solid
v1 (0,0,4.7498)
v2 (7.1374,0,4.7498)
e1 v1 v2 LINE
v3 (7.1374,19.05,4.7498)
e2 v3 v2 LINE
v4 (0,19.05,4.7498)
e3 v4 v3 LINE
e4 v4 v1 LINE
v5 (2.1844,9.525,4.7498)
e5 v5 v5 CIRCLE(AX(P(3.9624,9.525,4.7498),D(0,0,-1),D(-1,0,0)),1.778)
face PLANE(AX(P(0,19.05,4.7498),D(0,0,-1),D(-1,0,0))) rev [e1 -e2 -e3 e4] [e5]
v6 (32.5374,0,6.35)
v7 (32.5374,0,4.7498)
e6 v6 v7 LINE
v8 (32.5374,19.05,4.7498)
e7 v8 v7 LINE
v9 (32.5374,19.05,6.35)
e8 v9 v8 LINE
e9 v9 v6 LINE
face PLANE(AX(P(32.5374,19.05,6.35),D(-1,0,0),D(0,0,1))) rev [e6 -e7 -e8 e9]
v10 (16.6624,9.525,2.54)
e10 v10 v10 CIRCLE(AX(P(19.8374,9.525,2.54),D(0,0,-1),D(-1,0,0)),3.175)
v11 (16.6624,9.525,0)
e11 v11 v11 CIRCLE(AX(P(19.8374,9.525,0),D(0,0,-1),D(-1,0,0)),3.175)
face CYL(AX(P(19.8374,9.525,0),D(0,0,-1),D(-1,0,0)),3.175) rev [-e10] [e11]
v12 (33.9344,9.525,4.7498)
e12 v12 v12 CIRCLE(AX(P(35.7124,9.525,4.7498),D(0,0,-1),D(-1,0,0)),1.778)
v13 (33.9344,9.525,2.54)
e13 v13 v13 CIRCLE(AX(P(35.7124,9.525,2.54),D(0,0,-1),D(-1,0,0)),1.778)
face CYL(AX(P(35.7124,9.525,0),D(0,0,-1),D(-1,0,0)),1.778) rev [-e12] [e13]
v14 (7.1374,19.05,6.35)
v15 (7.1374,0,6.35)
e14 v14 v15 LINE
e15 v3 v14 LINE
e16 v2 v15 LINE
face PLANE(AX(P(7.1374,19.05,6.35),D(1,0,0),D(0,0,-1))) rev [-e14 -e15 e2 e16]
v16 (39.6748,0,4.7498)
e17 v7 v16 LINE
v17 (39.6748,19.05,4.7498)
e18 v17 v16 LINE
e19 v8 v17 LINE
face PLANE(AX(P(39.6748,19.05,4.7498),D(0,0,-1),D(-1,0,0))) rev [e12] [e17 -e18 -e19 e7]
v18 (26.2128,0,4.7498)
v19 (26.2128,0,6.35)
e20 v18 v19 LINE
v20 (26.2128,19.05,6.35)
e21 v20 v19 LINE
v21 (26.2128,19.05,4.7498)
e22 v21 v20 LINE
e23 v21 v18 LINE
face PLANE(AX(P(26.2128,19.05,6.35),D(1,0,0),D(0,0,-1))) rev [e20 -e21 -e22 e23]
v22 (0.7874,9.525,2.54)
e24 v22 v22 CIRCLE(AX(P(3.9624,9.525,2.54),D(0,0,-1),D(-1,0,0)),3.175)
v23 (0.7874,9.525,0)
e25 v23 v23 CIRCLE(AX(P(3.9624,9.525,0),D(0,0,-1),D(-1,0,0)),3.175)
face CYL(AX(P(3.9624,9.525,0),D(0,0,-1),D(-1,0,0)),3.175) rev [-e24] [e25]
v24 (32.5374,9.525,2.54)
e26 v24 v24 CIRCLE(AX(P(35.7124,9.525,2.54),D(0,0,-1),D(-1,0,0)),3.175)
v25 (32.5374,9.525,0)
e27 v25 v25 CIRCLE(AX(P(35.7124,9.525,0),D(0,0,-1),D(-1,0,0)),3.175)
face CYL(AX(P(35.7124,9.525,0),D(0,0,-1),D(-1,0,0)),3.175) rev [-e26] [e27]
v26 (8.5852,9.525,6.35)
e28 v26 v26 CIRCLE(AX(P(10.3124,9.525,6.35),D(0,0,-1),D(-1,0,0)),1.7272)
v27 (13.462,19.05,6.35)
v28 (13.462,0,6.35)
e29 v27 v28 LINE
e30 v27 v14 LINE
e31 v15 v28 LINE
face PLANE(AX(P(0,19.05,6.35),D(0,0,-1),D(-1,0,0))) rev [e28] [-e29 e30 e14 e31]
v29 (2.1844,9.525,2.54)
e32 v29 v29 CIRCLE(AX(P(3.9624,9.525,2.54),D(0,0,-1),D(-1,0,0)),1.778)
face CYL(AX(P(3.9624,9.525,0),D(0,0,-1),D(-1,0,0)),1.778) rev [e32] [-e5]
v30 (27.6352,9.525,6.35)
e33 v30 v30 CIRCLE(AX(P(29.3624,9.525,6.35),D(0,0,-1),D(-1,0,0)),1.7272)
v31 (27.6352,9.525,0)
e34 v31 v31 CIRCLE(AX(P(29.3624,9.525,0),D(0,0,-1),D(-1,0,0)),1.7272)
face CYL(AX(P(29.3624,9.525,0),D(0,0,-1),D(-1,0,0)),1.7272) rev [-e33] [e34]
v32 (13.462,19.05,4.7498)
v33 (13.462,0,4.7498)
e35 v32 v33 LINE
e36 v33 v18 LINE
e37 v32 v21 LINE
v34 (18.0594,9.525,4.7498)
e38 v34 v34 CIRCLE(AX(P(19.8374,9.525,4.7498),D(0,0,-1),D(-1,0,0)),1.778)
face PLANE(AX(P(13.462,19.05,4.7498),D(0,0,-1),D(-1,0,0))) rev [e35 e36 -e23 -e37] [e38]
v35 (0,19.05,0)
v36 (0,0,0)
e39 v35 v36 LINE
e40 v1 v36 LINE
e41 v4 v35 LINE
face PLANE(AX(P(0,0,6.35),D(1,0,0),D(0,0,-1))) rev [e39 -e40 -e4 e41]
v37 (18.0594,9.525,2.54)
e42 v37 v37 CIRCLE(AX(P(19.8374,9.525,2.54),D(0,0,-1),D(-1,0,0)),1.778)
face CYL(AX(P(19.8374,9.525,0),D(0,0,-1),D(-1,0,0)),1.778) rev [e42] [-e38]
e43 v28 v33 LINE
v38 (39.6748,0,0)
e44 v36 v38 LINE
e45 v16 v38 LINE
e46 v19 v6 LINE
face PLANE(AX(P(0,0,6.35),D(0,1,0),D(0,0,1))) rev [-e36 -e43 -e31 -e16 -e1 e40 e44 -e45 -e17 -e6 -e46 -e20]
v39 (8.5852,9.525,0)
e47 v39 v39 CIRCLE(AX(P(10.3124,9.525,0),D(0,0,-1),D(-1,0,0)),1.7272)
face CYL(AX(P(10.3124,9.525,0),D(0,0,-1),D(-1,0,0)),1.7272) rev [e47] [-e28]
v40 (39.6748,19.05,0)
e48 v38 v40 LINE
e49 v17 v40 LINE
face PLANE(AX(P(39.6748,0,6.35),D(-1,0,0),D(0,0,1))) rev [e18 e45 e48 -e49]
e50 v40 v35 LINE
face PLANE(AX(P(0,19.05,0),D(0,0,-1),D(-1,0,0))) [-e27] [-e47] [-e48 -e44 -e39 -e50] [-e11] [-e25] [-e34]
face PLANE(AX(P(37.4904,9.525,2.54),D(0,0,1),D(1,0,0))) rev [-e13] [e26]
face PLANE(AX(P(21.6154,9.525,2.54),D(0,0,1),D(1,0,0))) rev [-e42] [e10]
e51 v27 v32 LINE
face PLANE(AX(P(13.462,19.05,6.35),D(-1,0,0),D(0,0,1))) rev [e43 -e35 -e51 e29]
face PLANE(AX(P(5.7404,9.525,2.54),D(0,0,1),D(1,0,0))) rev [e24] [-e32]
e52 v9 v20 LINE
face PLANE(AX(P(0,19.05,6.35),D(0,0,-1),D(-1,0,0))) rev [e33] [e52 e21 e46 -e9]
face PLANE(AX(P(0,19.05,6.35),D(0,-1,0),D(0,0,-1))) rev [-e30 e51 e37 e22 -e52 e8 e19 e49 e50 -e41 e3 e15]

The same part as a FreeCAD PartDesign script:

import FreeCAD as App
import Part
import Sketcher
from FreeCAD import Vector
Q = App.Units.Quantity


def add_polygon(sketch, points):
    """Adds a closed chain of lines whose ends are joined by coincident constraints."""
    first, n = sketch.GeometryCount, len(points)
    for a, b in zip(points, points[1:] + points[:1]):
        sketch.addGeometry(Part.LineSegment(App.Vector(*a, 0), App.Vector(*b, 0)), False)
    for i in range(n):
        sketch.addConstraint(Sketcher.Constraint("Coincident", first + i, 2, first + (i + 1) % n, 1))

doc = App.newDocument("Part")
body = doc.addObject("PartDesign::Body", "Body")

# Sketch on XY plane
sketch1 = body.newObject("Sketcher::SketchObject", "Sketch")
sketch1.AttachmentSupport = (doc.getObject("XY_Plane"), [""])
sketch1.MapMode = "FlatFace"
add_polygon(sketch1, [(0, 19), (0, 0), (40, 0), (40, 19)])  # lines 0-3
sketch1.addConstraint(Sketcher.Constraint("Vertical", 0))
sketch1.addConstraint(Sketcher.Constraint("Horizontal", 1))
sketch1.addConstraint(Sketcher.Constraint("Vertical", 2))
sketch1.addConstraint(Sketcher.Constraint("Horizontal", 3))
sketch1.addConstraint(Sketcher.Constraint("Coincident", 0, 2, -1, 1))
sketch1.addConstraint(Sketcher.Constraint("DistanceY", 0, 2, 0, 1, Q("0.75 in")))
sketch1.addConstraint(Sketcher.Constraint("DistanceX", 1, 1, 1, 2, Q("1.562 in")))
pad1 = body.newObject("PartDesign::Pad", "Pad")
pad1.Profile = sketch1
pad1.Length = Q("0.25 in")

# Sketch on XZ plane
sketch2 = body.newObject("Sketcher::SketchObject", "Sketch001")
sketch2.AttachmentSupport = (doc.getObject("XZ_Plane"), [""])
sketch2.MapMode = "FlatFace"
add_polygon(sketch2, [(0, 6.3), (0, 4.7), (7.1, 4.7), (7.1, 6.3)])  # lines 0-3
add_polygon(sketch2, [(13.5, 6.3), (13.5, 4.7), (26.2, 4.7), (26.2, 6.3)])  # lines 4-7
add_polygon(sketch2, [(32.5, 6.3), (32.5, 4.7), (39.7, 4.7), (39.7, 6.3)])  # lines 8-11
sketch2.addConstraint(Sketcher.Constraint("Vertical", 0))
sketch2.addConstraint(Sketcher.Constraint("Horizontal", 1))
sketch2.addConstraint(Sketcher.Constraint("Vertical", 2))
sketch2.addConstraint(Sketcher.Constraint("Horizontal", 3))
sketch2.addConstraint(Sketcher.Constraint("Vertical", 4))
sketch2.addConstraint(Sketcher.Constraint("Horizontal", 5))
sketch2.addConstraint(Sketcher.Constraint("Vertical", 6))
sketch2.addConstraint(Sketcher.Constraint("Horizontal", 7))
sketch2.addConstraint(Sketcher.Constraint("Vertical", 8))
sketch2.addConstraint(Sketcher.Constraint("Horizontal", 9))
sketch2.addConstraint(Sketcher.Constraint("Vertical", 10))
sketch2.addConstraint(Sketcher.Constraint("Horizontal", 11))
sketch2.addConstraint(Sketcher.Constraint("PointOnObject", 0, 2, -2))
sketch2.addConstraint(Sketcher.Constraint("Horizontal", 1, 2, 4, 2))
sketch2.addConstraint(Sketcher.Constraint("Horizontal", 3, 2, 6, 2))
sketch2.addConstraint(Sketcher.Constraint("Horizontal", 5, 2, 8, 2))
sketch2.addConstraint(Sketcher.Constraint("Horizontal", 7, 2, 10, 2))
sketch2.addConstraint(Sketcher.Constraint("Equal", 3, 9))
sketch2.addConstraint(Sketcher.Constraint("DistanceX", 1, 2, 8, 2, Q("1 in")))
sketch2.addConstraint(Sketcher.Constraint("DistanceX", 1, 1, 1, 2, Q("0.281 in")))
sketch2.addConstraint(Sketcher.Constraint("DistanceX", 5, 1, 5, 2, Q("0.502 in")))
sketch2.addConstraint(Sketcher.Constraint("DistanceY", 0, 2, 0, 1, Q("0.063 in")))
sketch2.addConstraint(Sketcher.Constraint("DistanceY", -1, 1, 2, 2, Q("0.25 in")))
sketch2.addConstraint(Sketcher.Constraint("DistanceX", -1, 1, 4, 2, Q("0.53 in")))
pocket1 = body.newObject("PartDesign::Pocket", "Pocket")
pocket1.Profile = sketch2
pocket1.Type = "ThroughAll"

# Sketch on XY plane
sketch3 = body.newObject("Sketcher::SketchObject", "Sketch002")
sketch3.AttachmentSupport = (doc.getObject("XY_Plane"), [""])
sketch3.MapMode = "FlatFace"
sketch3.addGeometry(Part.Circle(Vector(4, 9.5, 0), Vector(0, 0, 1), 1.8), False)
sketch3.addGeometry(Part.Circle(Vector(19.8, 9.5, 0), Vector(0, 0, 1), 1.8), False)
sketch3.addGeometry(Part.Circle(Vector(35.7, 9.5, 0), Vector(0, 0, 1), 1.8), False)
sketch3.addConstraint(Sketcher.Constraint("Equal", 0, 1))
sketch3.addConstraint(Sketcher.Constraint("Equal", 1, 2))
sketch3.addConstraint(Sketcher.Constraint("Horizontal", 0, 3, 1, 3))
sketch3.addConstraint(Sketcher.Constraint("Horizontal", 1, 3, 2, 3))
sketch3.addConstraint(Sketcher.Constraint("Diameter", 0, Q("0.14 in")))
sketch3.addConstraint(Sketcher.Constraint("DistanceX", 0, 3, 2, 3, Q("1.25 in")))
sketch3.addConstraint(Sketcher.Constraint("DistanceX", -1, 1, 0, 3, Q("0.156 in")))
sketch3.addConstraint(Sketcher.Constraint("DistanceY", -1, 1, 0, 3, Q("0.375 in")))
sketch3.addConstraint(Sketcher.Constraint("DistanceX", -1, 1, 1, 3, Q("0.781 in")))
doc.recompute()
hole = body.newObject("PartDesign::Hole", "Hole")
hole.Profile = sketch3
hole.ThreadType = "None"
hole.Diameter = Q("0.14 in")
hole.DepthType = "ThroughAll"
hole.HoleCutType = "Counterbore"
hole.HoleCutDiameter = Q("0.25 in")
hole.HoleCutDepth = Q("0.1 in")
hole.Reversed = True

# Sketch on XY plane
sketch4 = body.newObject("Sketcher::SketchObject", "Sketch003")
sketch4.AttachmentSupport = (doc.getObject("XY_Plane"), [""])
sketch4.MapMode = "FlatFace"
sketch4.addGeometry(Part.Circle(Vector(10.3, 9.5, 0), Vector(0, 0, 1), 1.7), False)
sketch4.addGeometry(Part.Circle(Vector(29.4, 9.5, 0), Vector(0, 0, 1), 1.7), False)
sketch4.addConstraint(Sketcher.Constraint("Equal", 0, 1))
sketch4.addConstraint(Sketcher.Constraint("Horizontal", 0, 3, 1, 3))
sketch4.addConstraint(Sketcher.Constraint("Diameter", 0, Q("0.136 in")))
sketch4.addConstraint(Sketcher.Constraint("DistanceX", 0, 3, 1, 3, Q("0.75 in")))
sketch4.addConstraint(Sketcher.Constraint("DistanceX", -1, 1, 0, 3, Q("0.406 in")))
sketch4.addConstraint(Sketcher.Constraint("DistanceY", -1, 1, 0, 3, Q("0.375 in")))
doc.recompute()
hole2 = body.newObject("PartDesign::Hole", "Hole001")
hole2.Profile = sketch4
hole2.ThreadType = "None"
hole2.Diameter = Q("0.136 in")
hole2.DepthType = "ThroughAll"
hole2.Reversed = True

doc.recompute()
